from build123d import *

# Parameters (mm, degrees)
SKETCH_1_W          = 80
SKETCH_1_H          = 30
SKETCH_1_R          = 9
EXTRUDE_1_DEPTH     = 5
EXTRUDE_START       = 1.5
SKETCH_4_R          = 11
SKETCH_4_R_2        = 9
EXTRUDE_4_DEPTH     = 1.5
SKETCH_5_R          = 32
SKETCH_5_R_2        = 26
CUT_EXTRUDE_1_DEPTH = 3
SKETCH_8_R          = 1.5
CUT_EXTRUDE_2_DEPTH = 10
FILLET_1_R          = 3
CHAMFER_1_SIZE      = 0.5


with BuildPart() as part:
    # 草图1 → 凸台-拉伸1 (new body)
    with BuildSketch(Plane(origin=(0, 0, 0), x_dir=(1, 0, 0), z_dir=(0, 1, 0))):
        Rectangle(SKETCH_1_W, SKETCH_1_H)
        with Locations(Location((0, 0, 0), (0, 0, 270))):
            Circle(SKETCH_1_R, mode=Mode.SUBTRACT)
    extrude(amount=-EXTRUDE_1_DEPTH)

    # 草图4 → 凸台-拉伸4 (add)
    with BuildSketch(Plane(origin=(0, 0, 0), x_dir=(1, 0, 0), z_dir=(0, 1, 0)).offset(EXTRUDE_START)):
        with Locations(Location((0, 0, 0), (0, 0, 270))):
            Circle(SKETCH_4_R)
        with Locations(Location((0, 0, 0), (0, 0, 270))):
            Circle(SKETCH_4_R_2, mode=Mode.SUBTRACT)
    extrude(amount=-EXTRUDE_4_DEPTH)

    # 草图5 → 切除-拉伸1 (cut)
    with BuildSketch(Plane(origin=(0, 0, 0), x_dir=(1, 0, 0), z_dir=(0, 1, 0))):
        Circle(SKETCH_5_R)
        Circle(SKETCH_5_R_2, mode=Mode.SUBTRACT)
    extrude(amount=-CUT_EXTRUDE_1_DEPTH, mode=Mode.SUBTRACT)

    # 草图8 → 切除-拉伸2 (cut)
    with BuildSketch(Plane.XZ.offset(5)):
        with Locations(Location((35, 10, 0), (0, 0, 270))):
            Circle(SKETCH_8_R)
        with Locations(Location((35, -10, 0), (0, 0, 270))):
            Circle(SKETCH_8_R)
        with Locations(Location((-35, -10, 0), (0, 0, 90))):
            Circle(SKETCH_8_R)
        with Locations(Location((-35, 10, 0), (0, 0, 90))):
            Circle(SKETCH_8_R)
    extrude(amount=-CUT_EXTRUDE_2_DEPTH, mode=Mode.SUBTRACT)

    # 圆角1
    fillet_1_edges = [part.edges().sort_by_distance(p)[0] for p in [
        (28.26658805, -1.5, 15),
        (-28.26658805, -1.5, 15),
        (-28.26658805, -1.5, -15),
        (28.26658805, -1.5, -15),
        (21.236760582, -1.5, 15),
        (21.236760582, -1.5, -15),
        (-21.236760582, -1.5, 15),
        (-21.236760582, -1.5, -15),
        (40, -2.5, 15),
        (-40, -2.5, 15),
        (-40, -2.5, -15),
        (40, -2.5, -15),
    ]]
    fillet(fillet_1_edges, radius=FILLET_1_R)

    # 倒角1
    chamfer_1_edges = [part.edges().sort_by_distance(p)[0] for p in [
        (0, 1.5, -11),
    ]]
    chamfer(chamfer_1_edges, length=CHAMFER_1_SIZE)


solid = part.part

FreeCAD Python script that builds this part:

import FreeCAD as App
import Part
import Sketcher

V = App.Vector


def edges_at(feature, points):
    """Names of the edges that pass closest to the given points."""
    edges = feature.Shape.Edges
    near = lambda p: min(range(len(edges)), key=lambda i: edges[i].distToShape(Part.Vertex(*p))[0])
    return sorted({f"Edge{near(p) + 1}" for p in points})


def add_polygon(sketch, points):
    """Adds a closed chain of lines whose ends are joined by coincident constraints."""
    first, n = sketch.GeometryCount, len(points)
    for a, b in zip(points, points[1:] + points[:1]):
        sketch.addGeometry(Part.LineSegment(App.Vector(*a, 0), App.Vector(*b, 0)), False)
    for i in range(n):
        sketch.addConstraint(Sketcher.Constraint("Coincident", first + i, 2, first + (i + 1) % n, 1))

doc = App.newDocument("Part")
body = doc.addObject("PartDesign::Body", "Body")

# Sketch on XZ plane
sketch1 = doc.addObject("Sketcher::SketchObject", "Sketch")
body.addObject(sketch1)
sketch1.AttachmentSupport = (doc.XZ_Plane, [""])
sketch1.MapMode = "FlatFace"
add_polygon(sketch1, [(-40, -15), (-40, 15), (40, 15), (40, -15)])  # lines 0-3
sketch1.addGeometry(Part.Circle(V(0, 0, 0), V(0, 0, 1), 9), False)  # 4
sketch1.addConstraint([
    Sketcher.Constraint("Vertical", 0),
    Sketcher.Constraint("Horizontal", 1),
    Sketcher.Constraint("Vertical", 2),
    Sketcher.Constraint("Horizontal", 3),
    Sketcher.Constraint("Coincident", 4, 3, -1, 1),
    Sketcher.Constraint("Symmetric", 0, 2, 2, 2, -1, 1),
    Sketcher.Constraint("Diameter", 4, 18.0),
    Sketcher.Constraint("DistanceX", 1, 1, 1, 2, 80.0),
    Sketcher.Constraint("DistanceY", 0, 1, 0, 2, 30.0),
])
pad1 = doc.addObject("PartDesign::Pad", "Pad")
body.addObject(pad1)
pad1.Profile = sketch1
pad1.Length = 5

# Sketch on XZ plane
sketch2 = doc.addObject("Sketcher::SketchObject", "Sketch001")
body.addObject(sketch2)
sketch2.AttachmentSupport = (doc.XZ_Plane, [""])
sketch2.MapMode = "FlatFace"
sketch2.AttachmentOffset = App.Placement(V(0, 0, -1.5), App.Rotation())
sketch2.addGeometry([
    Part.Circle(V(0, 0, 0), V(0, 0, 1), 11),
    Part.Circle(V(0, 0, 0), V(0, 0, 1), 9),
], False)
sketch2.addConstraint([
    Sketcher.Constraint("Coincident", 0, 3, -1, 1),
    Sketcher.Constraint("Coincident", 1, 3, -1, 1),
    Sketcher.Constraint("Diameter", 0, 22.0),
    Sketcher.Constraint("Diameter", 1, 18.0),
])
pad2 = doc.addObject("PartDesign::Pad", "Pad001")
body.addObject(pad2)
pad2.Profile = sketch2
pad2.Length = 1.5

# Sketch on XZ plane
sketch3 = doc.addObject("Sketcher::SketchObject", "Sketch002")
body.addObject(sketch3)
sketch3.AttachmentSupport = (doc.XZ_Plane, [""])
sketch3.MapMode = "FlatFace"
sketch3.addGeometry([
    Part.Circle(V(0, 0, 0), V(0, 0, 1), 32),
    Part.Circle(V(0, 0, 0), V(0, 0, 1), 26),
], False)
sketch3.addConstraint([
    Sketcher.Constraint("Coincident", 0, 3, -1, 1),
    Sketcher.Constraint("Coincident", 1, 3, -1, 1),
    Sketcher.Constraint("Diameter", 0, 64.0),
    Sketcher.Constraint("Diameter", 1, 52.0),
])
pocket1 = doc.addObject("PartDesign::Pocket", "Pocket")
body.addObject(pocket1)
pocket1.Profile = sketch3
pocket1.Length = 3
pocket1.Reversed = True

# Sketch on XZ plane
sketch4 = doc.addObject("Sketcher::SketchObject", "Sketch003")
body.addObject(sketch4)
sketch4.AttachmentSupport = (doc.XZ_Plane, [""])
sketch4.MapMode = "FlatFace"
sketch4.AttachmentOffset = App.Placement(V(0, 0, 5), App.Rotation())
sketch4.addGeometry([
    Part.Circle(V(35, 10, 0), V(0, 0, 1), 1.5),
    Part.Circle(V(35, -10, 0), V(0, 0, 1), 1.5),
    Part.Circle(V(-35, -10, 0), V(0, 0, 1), 1.5),
    Part.Circle(V(-35, 10, 0), V(0, 0, 1), 1.5),
], False)
sketch4.addConstraint([
    Sketcher.Constraint("Equal", 0, 1),
    Sketcher.Constraint("Equal", 1, 2),
    Sketcher.Constraint("Equal", 2, 3),
    Sketcher.Constraint("Symmetric", 0, 3, 2, 3, -1, 1),
    Sketcher.Constraint("Symmetric", 1, 3, 3, 3, -1, 1),
    Sketcher.Constraint("Symmetric", 1, 3, 2, 3, -2),
    Sketcher.Constraint("Diameter", 0, 3.0),
    Sketcher.Constraint("DistanceX", -1, 1, 0, 3, 35.0),
    Sketcher.Constraint("DistanceY", -1, 1, 0, 3, 10.0),
])
pocket2 = doc.addObject("PartDesign::Pocket", "Pocket001")
body.addObject(pocket2)
pocket2.Profile = sketch4
pocket2.Length = 10
doc.recompute()

fillet = doc.addObject("PartDesign::Fillet", "Fillet")
body.addObject(fillet)
fillet.Base = (pocket2, edges_at(pocket2, [
    (28.267, -1.5, 15),
    (-28.267, -1.5, 15),
    (-28.267, -1.5, -15),
    (28.267, -1.5, -15),
    (21.237, -1.5, 15),
    (21.237, -1.5, -15),
    (-21.237, -1.5, 15),
    (-21.237, -1.5, -15),
    (40, -2.5, 15),
    (-40, -2.5, 15),
    (-40, -2.5, -15),
    (40, -2.5, -15),
]))
fillet.Radius = 3
doc.recompute()

chamfer = doc.addObject("PartDesign::Chamfer", "Chamfer")
body.addObject(chamfer)
chamfer.Base = (fillet, edges_at(fillet, [(0, 1.5, -11)]))
chamfer.Size = 0.5

doc.recompute()
